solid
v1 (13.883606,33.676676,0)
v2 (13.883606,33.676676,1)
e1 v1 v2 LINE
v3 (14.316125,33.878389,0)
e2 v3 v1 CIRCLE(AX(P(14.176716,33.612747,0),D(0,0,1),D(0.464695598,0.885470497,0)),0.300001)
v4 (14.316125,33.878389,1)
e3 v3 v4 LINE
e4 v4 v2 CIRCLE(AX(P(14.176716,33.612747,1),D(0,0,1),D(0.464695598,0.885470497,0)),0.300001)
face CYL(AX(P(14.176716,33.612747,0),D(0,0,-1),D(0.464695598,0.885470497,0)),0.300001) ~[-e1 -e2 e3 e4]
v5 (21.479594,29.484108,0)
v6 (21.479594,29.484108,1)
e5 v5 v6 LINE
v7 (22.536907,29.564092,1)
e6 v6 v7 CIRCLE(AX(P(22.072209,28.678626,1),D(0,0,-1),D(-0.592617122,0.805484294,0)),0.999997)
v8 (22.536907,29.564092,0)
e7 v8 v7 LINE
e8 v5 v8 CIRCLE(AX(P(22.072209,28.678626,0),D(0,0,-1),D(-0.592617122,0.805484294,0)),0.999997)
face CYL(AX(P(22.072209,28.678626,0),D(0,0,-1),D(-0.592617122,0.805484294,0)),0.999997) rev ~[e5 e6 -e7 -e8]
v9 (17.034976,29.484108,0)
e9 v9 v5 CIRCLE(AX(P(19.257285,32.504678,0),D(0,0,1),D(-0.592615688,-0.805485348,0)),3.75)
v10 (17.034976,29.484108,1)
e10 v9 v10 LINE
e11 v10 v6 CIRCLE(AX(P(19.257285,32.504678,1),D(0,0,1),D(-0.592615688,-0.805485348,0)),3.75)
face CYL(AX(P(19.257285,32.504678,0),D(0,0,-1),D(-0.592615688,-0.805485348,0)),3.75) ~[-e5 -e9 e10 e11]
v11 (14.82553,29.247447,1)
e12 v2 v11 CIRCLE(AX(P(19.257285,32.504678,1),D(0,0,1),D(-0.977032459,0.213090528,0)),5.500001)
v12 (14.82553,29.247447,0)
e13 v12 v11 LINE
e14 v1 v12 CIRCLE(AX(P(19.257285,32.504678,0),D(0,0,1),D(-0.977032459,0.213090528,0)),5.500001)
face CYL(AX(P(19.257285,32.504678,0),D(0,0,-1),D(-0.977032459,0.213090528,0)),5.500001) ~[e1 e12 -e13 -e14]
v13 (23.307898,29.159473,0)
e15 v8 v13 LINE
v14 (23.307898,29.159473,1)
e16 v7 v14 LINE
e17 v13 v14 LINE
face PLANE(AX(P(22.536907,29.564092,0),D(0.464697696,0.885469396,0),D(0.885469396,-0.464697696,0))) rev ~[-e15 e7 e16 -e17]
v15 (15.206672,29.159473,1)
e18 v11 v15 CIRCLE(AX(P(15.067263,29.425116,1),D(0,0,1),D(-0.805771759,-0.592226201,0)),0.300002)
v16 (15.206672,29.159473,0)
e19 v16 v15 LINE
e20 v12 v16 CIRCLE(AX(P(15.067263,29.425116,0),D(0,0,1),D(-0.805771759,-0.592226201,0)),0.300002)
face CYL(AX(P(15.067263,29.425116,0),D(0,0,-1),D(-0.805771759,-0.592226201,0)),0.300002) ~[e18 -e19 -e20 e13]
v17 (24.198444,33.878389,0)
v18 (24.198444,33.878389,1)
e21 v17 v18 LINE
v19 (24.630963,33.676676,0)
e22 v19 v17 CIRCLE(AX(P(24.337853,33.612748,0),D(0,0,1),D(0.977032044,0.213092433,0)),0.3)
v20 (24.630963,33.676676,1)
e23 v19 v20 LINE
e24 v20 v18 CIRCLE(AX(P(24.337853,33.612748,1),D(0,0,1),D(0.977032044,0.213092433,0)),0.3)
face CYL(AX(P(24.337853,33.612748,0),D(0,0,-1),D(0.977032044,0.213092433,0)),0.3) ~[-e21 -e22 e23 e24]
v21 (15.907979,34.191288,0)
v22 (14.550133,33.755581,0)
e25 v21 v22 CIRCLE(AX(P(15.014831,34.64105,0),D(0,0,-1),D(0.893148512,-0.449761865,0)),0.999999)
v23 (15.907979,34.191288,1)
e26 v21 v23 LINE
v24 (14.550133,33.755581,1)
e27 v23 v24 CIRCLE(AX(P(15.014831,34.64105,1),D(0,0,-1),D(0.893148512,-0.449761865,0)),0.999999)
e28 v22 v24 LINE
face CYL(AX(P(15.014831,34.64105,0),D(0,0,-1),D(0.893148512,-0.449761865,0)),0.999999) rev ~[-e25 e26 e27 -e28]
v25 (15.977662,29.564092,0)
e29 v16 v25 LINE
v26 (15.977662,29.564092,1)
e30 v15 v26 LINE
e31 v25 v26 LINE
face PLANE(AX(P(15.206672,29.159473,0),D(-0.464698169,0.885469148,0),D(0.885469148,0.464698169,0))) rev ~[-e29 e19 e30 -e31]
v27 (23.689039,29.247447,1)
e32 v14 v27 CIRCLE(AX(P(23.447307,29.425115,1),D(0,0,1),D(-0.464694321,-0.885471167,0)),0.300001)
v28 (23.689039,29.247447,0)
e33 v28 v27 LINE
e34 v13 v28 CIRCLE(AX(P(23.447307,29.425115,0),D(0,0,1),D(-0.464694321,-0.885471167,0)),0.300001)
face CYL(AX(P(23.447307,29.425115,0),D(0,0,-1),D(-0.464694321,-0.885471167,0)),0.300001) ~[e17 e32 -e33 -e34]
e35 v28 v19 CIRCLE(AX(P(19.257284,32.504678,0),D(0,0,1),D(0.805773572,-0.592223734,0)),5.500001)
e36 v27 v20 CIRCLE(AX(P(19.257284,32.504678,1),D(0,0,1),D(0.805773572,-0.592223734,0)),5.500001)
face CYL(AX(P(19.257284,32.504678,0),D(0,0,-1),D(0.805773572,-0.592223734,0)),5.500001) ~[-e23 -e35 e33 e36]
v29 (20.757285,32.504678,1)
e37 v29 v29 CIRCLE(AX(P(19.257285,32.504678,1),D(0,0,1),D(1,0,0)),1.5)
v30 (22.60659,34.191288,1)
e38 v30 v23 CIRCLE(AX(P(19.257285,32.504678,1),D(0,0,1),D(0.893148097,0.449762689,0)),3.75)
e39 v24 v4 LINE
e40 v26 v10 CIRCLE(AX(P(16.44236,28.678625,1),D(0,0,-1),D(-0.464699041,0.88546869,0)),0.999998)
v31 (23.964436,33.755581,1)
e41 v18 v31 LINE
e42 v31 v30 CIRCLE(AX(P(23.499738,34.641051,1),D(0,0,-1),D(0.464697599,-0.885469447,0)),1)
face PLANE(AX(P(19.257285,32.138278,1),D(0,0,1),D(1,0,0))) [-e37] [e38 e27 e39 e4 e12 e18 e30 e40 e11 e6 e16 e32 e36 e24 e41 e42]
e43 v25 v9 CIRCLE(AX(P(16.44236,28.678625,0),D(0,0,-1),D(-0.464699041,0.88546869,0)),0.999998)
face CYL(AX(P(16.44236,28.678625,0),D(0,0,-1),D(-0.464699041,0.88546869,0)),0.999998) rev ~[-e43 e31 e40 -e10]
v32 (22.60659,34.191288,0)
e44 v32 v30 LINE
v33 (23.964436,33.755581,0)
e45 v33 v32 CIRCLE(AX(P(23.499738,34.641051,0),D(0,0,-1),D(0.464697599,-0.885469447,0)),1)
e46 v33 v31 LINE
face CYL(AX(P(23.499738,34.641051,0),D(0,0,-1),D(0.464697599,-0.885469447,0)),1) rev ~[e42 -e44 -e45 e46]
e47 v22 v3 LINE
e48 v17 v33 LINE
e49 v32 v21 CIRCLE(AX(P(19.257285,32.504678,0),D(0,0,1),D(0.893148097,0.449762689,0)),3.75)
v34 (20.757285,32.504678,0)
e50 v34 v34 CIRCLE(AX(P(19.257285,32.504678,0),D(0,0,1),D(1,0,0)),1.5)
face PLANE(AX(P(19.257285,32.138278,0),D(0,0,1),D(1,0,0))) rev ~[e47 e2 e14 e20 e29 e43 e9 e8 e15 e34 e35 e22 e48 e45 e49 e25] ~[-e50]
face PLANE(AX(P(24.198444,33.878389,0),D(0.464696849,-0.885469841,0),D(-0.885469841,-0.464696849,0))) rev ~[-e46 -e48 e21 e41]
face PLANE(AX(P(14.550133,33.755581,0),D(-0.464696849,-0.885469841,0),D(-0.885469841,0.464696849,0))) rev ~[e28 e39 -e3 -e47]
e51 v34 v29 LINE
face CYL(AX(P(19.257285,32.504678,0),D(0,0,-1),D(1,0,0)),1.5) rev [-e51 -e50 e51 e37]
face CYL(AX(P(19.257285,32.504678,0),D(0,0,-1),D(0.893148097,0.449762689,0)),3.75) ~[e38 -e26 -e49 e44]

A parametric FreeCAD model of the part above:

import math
import FreeCAD as App
import Part
import Sketcher
from FreeCAD import Vector
Q = App.Units.Quantity

doc = App.newDocument("Part")
params = doc.addObject("Spreadsheet::Sheet", "Params")
for row, (alias, value) in enumerate([
    ("sketch1_diameter", "3 mm"),
    ("sketch1_radius", "0.999998 mm"),
    ("sketch1_radius2", "1 mm"),
    ("sketch1_radius3", "0.999999 mm"),
    ("sketch1_radius4", "0.300001 mm"),
    ("pad1_length", "1 mm"),
], start=1):
    params.set(f"A{row}", alias)
    params.set(f"B{row}", "=" + value)
    params.setAlias(f"B{row}", alias)

body = doc.addObject("PartDesign::Body", "Body")

sketch1 = doc.addObject("Sketcher::SketchObject", "Sketch")
body.addObject(sketch1)
sketch1.AttachmentSupport = (doc.XY_Plane, [""])
sketch1.MapMode = "FlatFace"
sketch1.addGeometry(Part.ArcOfCircle(Part.Circle(Vector(14.176716, 33.612747, 0), Vector(0, 0, 1), 0.300001), math.radians(62.309477), math.radians(167.696198)), False)
sketch1.addGeometry(Part.ArcOfCircle(Part.Circle(Vector(19.257285, 32.504678, 0), Vector(0, 0, 1), 5.500001), math.radians(167.696473), math.radians(216.31497)), False)
sketch1.addGeometry(Part.ArcOfCircle(Part.Circle(Vector(15.067263, 29.425116, 0), Vector(0, 0, 1), 0.300002), math.radians(-143.684854), math.radians(-62.309561)), False)
sketch1.addGeometry(Part.LineSegment(Vector(15.206672, 29.159473, 0), Vector(15.977662, 29.564092, 0)), False)
sketch1.addGeometry(Part.ArcOfCircle(Part.Circle(Vector(16.44236, 28.678625, 0), Vector(0, 0, 1), 0.999998), math.radians(53.657077), math.radians(117.690746)), False)
sketch1.addGeometry(Part.ArcOfCircle(Part.Circle(Vector(19.257285, 32.504678, 0), Vector(0, 0, 1), 3.75), math.radians(-126.342846), math.radians(-53.657154)), False)
sketch1.addGeometry(Part.ArcOfCircle(Part.Circle(Vector(22.072209, 28.678626, 0), Vector(0, 0, 1), 0.999997), math.radians(62.309237), math.radians(126.342948)), False)
sketch1.addGeometry(Part.LineSegment(Vector(22.536907, 29.564092, 0), Vector(23.307898, 29.159473, 0)), False)
sketch1.addGeometry(Part.ArcOfCircle(Part.Circle(Vector(23.447307, 29.425115, 0), Vector(0, 0, 1), 0.300001), math.radians(-117.690441), math.radians(-36.315078)), False)
sketch1.addGeometry(Part.ArcOfCircle(Part.Circle(Vector(19.257284, 32.504678, 0), Vector(0, 0, 1), 5.500001), math.radians(-36.31497), math.radians(12.303527)), False)
sketch1.addGeometry(Part.ArcOfCircle(Part.Circle(Vector(24.337853, 33.612748, 0), Vector(0, 0, 1), 0.3), math.radians(12.303639), math.radians(117.690687)), False)
sketch1.addGeometry(Part.LineSegment(Vector(24.198444, 33.878389, 0), Vector(23.964436, 33.755581, 0)), False)
sketch1.addGeometry(Part.ArcOfCircle(Part.Circle(Vector(23.499738, 34.641051, 0), Vector(0, 0, 1), 1), math.radians(-153.271552), math.radians(-62.309347)), False)
sketch1.addGeometry(Part.ArcOfCircle(Part.Circle(Vector(19.257285, 32.504678, 0), Vector(0, 0, 1), 3.75), math.radians(26.728459), math.radians(153.271541)), False)
sketch1.addGeometry(Part.ArcOfCircle(Part.Circle(Vector(15.014831, 34.64105, 0), Vector(0, 0, 1), 0.999999), math.radians(-117.690695), math.radians(-26.728406)), False)
sketch1.addGeometry(Part.LineSegment(Vector(14.550133, 33.755581, 0), Vector(14.316125, 33.878389, 0)), False)
sketch1.addGeometry(Part.Circle(Vector(19.257285, 32.504678, 0), Vector(0, 0, 1), 1.5), False)
sketch1.addConstraint(Sketcher.Constraint("Coincident", 0, 2, 1, 1))
sketch1.addConstraint(Sketcher.Constraint("Coincident", 1, 2, 2, 1))
sketch1.addConstraint(Sketcher.Constraint("Coincident", 2, 2, 3, 1))
sketch1.addConstraint(Sketcher.Constraint("Coincident", 3, 2, 4, 2))
sketch1.addConstraint(Sketcher.Constraint("Coincident", 4, 1, 5, 1))
sketch1.addConstraint(Sketcher.Constraint("Coincident", 5, 2, 6, 2))
sketch1.addConstraint(Sketcher.Constraint("Coincident", 6, 1, 7, 1))
sketch1.addConstraint(Sketcher.Constraint("Coincident", 7, 2, 8, 1))
sketch1.addConstraint(Sketcher.Constraint("Coincident", 8, 2, 9, 1))
sketch1.addConstraint(Sketcher.Constraint("Coincident", 9, 2, 10, 1))
sketch1.addConstraint(Sketcher.Constraint("Coincident", 10, 2, 11, 1))
sketch1.addConstraint(Sketcher.Constraint("Coincident", 11, 2, 12, 2))
sketch1.addConstraint(Sketcher.Constraint("Coincident", 12, 1, 13, 1))
sketch1.addConstraint(Sketcher.Constraint("Coincident", 13, 2, 14, 2))
sketch1.addConstraint(Sketcher.Constraint("Coincident", 14, 1, 15, 1))
sketch1.addConstraint(Sketcher.Constraint("Coincident", 15, 2, 0, 1))
sketch1.addConstraint(Sketcher.Constraint("Coincident", 5, 3, 1, 3))
sketch1.addConstraint(Sketcher.Constraint("Coincident", 9, 3, 1, 3))
sketch1.addConstraint(Sketcher.Constraint("Coincident", 13, 3, 1, 3))
sketch1.addConstraint(Sketcher.Constraint("Coincident", 16, 3, 1, 3))
sketch1.addConstraint(Sketcher.Constraint("Diameter", 16, Q("3 mm")))
sketch1.addConstraint(Sketcher.Constraint("Radius", 4, Q("0.999998 mm")))
sketch1.addConstraint(Sketcher.Constraint("Radius", 12, Q("1 mm")))
sketch1.addConstraint(Sketcher.Constraint("Radius", 14, Q("0.999999 mm")))
sketch1.addConstraint(Sketcher.Constraint("Radius", 0, Q("0.300001 mm")))
sketch1.addConstraint(Sketcher.Constraint("Radius", 1, Q("5.500001 mm")))
sketch1.addConstraint(Sketcher.Constraint("Radius", 2, Q("0.300002 mm")))
sketch1.addConstraint(Sketcher.Constraint("Radius", 8, Q("0.300001 mm")))
sketch1.addConstraint(Sketcher.Constraint("Radius", 9, Q("5.500001 mm")))
sketch1.addConstraint(Sketcher.Constraint("Radius", 10, Q("0.3 mm")))
sketch1.addConstraint(Sketcher.Constraint("Radius", 5, Q("3.75 mm")))
sketch1.addConstraint(Sketcher.Constraint("Radius", 13, Q("3.75 mm")))
sketch1.addConstraint(Sketcher.Constraint("Radius", 6, Q("0.999997 mm")))
sketch1.addConstraint(Sketcher.Constraint("DistanceY", 9, 3, 0, 2, Q("1.171998 mm")))
sketch1.addConstraint(Sketcher.Constraint("DistanceX", -1, 1, 7, 2, Q("23.307898 mm")))
sketch1.addConstraint(Sketcher.Constraint("DistanceY", 1, 2, 0, 3, Q("4.3653 mm")))
sketch1.addConstraint(Sketcher.Constraint("DistanceX", 1, 2, 14, 3, Q("0.189301 mm")))
sketch1.addConstraint(Sketcher.Constraint("DistanceX", 2, 3, 3, 2, Q("0.910399 mm")))
sketch1.addConstraint(Sketcher.Constraint("DistanceX", 3, 2, 4, 3, Q("0.464698 mm")))
sketch1.addConstraint(Sketcher.Constraint("DistanceX", 6, 1, 8, 3, Q("0.9104 mm")))
sketch1.addConstraint(Sketcher.Constraint("DistanceY", 10, 2, 12, 1, Q("0.312899 mm")))
sketch1.addConstraint(Sketcher.Constraint("DistanceY", 15, 2, 13, 2, Q("0.312899 mm")))
sketch1.addConstraint(Sketcher.Constraint("DistanceX", -1, 1, 4, 3, Q("16.44236 mm")))
sketch1.addConstraint(Sketcher.Constraint("DistanceY", -1, 1, 5, 3, Q("32.504678 mm")))
sketch1.addConstraint(Sketcher.Constraint("DistanceX", -1, 1, 6, 3, Q("22.072209 mm")))
sketch1.addConstraint(Sketcher.Constraint("DistanceY", -1, 1, 10, 3, Q("33.612748 mm")))
sketch1.addConstraint(Sketcher.Constraint("DistanceX", -1, 1, 12, 3, Q("23.499738 mm")))
sketch1.addConstraint(Sketcher.Constraint("DistanceY", -1, 1, 12, 3, Q("34.641051 mm")))
sketch1.addConstraint(Sketcher.Constraint("DistanceX", -1, 1, 14, 3, Q("15.014831 mm")))
sketch1.addConstraint(Sketcher.Constraint("DistanceY", -1, 1, 5, 2, Q("29.484108 mm")))
sketch1.addConstraint(Sketcher.Constraint("DistanceX", -1, 1, 8, 2, Q("23.689039 mm")))
sketch1.addConstraint(Sketcher.Constraint("DistanceY", -1, 1, 10, 2, Q("33.878389 mm")))
sketch1.addConstraint(Sketcher.Constraint("DistanceY", -1, 1, 11, 2, Q("33.755581 mm")))
sketch1.addConstraint(Sketcher.Constraint("DistanceX", -1, 1, 13, 2, Q("15.907979 mm")))
sketch1.addConstraint(Sketcher.Constraint("DistanceY", -1, 1, 14, 1, Q("33.755581 mm")))
sketch1.addConstraint(Sketcher.Constraint("DistanceY", 6, 3, 8, 3, Q("0.746489 mm")))
sketch1.addConstraint(Sketcher.Constraint("DistanceX", 2, 3, 2, 2, Q("0.139409 mm")))
sketch1.addConstraint(Sketcher.Constraint("DistanceY", 1, 2, 4, 1, Q("0.236661 mm")))
sketch1.addConstraint(Sketcher.Constraint("DistanceX", 10, 3, 9, 2, Q("0.29311 mm")))
sketch1.setExpression("Constraints[20]", "Params.sketch1_diameter")
sketch1.setExpression("Constraints[21]", "Params.sketch1_radius")
sketch1.setExpression("Constraints[22]", "Params.sketch1_radius2")
sketch1.setExpression("Constraints[23]", "Params.sketch1_radius3")
sketch1.setExpression("Constraints[24]", "Params.sketch1_radius4")
pad1 = doc.addObject("PartDesign::Pad", "Pad")
body.addObject(pad1)
pad1.Profile = sketch1
pad1.setExpression("Length", "Params.pad1_length")

doc.recompute()
